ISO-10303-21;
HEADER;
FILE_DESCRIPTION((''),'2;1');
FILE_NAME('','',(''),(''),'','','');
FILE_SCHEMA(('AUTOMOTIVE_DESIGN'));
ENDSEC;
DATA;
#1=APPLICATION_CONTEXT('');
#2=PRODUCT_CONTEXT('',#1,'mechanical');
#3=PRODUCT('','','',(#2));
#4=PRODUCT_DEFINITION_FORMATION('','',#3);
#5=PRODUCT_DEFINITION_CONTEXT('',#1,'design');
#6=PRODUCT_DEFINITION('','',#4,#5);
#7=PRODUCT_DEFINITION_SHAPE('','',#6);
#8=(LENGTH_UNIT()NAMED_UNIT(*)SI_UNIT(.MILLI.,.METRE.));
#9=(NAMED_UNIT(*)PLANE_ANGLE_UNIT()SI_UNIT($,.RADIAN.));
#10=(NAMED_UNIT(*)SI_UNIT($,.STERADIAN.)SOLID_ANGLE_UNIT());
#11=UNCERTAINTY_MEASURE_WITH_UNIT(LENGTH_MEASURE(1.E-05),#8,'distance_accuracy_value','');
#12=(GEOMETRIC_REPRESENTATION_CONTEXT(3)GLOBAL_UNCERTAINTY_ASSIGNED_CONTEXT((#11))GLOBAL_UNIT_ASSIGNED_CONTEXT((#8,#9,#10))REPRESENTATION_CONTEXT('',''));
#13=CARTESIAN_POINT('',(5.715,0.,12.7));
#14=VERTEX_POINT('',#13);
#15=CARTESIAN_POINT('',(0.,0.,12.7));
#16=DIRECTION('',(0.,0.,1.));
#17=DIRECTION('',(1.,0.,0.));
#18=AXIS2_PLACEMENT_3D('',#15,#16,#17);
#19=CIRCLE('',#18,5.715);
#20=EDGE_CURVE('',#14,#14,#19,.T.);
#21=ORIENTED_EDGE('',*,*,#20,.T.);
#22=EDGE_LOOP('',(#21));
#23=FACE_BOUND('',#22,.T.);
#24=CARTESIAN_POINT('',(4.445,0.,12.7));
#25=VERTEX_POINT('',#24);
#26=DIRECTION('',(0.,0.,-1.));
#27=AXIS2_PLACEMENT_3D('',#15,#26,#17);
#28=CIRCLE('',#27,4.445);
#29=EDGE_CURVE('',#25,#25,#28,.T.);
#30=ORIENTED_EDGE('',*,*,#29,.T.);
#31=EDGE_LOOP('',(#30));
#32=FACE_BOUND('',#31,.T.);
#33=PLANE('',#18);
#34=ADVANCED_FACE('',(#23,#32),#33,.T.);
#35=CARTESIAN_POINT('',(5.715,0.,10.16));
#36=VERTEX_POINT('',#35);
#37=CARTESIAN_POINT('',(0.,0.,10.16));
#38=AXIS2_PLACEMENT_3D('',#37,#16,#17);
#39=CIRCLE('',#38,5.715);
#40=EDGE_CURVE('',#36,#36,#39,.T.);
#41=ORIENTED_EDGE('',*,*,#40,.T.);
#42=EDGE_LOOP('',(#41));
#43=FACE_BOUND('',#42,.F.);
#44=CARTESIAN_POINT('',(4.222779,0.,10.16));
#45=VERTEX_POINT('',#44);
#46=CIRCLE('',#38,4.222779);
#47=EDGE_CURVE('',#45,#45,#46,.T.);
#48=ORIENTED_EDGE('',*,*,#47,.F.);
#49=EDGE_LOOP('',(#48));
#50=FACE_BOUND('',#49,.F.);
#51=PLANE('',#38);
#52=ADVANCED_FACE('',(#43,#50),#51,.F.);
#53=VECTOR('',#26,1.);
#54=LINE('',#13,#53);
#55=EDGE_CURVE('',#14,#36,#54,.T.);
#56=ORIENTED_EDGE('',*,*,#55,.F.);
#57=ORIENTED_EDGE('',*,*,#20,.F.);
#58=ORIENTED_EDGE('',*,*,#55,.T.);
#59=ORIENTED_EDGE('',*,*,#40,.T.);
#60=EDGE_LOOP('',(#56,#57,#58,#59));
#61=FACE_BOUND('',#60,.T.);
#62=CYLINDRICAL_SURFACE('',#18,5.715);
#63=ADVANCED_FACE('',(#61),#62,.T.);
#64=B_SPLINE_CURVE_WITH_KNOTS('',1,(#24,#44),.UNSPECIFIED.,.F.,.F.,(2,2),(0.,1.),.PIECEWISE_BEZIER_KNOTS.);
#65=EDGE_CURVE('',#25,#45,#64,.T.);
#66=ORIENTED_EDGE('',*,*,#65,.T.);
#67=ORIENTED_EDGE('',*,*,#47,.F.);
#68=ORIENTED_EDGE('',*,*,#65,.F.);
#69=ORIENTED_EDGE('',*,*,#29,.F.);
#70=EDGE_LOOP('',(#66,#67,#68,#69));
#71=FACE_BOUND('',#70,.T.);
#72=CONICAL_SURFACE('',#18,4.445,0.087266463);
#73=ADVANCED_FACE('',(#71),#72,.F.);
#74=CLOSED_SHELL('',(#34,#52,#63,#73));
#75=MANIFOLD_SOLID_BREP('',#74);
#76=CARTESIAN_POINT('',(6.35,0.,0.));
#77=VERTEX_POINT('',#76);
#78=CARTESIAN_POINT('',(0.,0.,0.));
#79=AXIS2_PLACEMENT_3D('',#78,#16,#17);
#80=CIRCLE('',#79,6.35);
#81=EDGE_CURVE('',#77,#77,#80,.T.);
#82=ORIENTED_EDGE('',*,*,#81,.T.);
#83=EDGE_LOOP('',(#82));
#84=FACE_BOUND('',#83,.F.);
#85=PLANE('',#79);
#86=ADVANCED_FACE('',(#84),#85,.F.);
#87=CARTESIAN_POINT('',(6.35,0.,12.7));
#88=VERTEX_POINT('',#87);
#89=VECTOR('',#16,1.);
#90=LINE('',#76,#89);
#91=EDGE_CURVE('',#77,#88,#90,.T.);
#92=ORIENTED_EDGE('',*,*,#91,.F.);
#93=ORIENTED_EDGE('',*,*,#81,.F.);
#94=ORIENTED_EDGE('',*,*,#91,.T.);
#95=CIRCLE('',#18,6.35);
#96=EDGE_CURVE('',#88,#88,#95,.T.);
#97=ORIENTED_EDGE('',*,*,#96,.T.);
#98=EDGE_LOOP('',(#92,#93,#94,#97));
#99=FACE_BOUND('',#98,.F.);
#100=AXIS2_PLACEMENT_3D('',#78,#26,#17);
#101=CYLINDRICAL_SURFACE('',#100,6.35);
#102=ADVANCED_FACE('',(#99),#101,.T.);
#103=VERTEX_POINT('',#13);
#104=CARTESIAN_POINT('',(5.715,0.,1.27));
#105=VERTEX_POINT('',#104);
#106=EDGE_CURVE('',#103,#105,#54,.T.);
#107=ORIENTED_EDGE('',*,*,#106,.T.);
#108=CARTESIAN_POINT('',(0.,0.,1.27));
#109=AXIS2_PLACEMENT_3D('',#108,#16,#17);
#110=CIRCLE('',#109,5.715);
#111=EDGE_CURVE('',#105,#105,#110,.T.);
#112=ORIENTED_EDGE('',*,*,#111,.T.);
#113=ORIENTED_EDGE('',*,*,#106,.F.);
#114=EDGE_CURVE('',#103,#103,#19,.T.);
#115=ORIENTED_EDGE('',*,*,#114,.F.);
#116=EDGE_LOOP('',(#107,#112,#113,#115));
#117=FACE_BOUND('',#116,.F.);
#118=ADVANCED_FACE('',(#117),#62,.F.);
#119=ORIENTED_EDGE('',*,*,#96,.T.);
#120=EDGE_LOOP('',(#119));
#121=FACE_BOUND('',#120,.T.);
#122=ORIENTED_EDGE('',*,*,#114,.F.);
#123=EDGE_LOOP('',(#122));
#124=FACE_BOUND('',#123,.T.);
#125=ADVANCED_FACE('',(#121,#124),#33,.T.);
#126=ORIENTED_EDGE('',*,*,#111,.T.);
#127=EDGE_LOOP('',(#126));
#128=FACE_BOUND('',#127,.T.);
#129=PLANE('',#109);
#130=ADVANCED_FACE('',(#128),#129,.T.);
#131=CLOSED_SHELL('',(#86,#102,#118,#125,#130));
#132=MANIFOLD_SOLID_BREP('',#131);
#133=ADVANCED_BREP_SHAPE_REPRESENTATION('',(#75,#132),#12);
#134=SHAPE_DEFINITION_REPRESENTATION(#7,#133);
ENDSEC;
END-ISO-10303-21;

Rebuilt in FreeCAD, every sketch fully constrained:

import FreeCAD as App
import Part
import Sketcher
Q = App.Units.Quantity

doc = App.newDocument("Part")
params = doc.addObject("Spreadsheet::Sheet", "Params")
for row, (alias, value) in enumerate([
    ("sketch1_diameter", "0.5 in"),
    ("pad1_length", "0.5 in"),
    ("sketch2_diameter", "0.45 in"),
    ("sketch2_diameter2", "0.35 in"),
    ("pocket1_length", "0.45 in"),
    ("sketch3_diameter", "0.35 in"),
    ("pocket2_length", "0.45 in"),
    ("sketch4_diameter", "0.45 in"),
    ("sketch4_diameter2", "0.35 in"),
    ("pad2_length", "0.1 in"),
    ("sketch5_diameter", "0.35 in"),
    ("pad3_length", "0.1 in"),
    ("sketch6_diameter", "0.35 in"),
    ("pocket3_length", "0.1 in"),
    ("pocket3_taper", "-5 deg"),
], start=1):
    params.set(f"A{row}", alias)
    params.set(f"B{row}", "=" + value)
    params.setAlias(f"B{row}", alias)

body = doc.addObject("PartDesign::Body", "Body")

sketch1 = body.newObject("Sketcher::SketchObject", "Sketch")
sketch1.AttachmentSupport = (doc.getObject("XY_Plane"), [""])
sketch1.MapMode = "FlatFace"
sketch1.addGeometry(Part.Circle(App.Vector(0, 0, 0), App.Vector(0, 0, 1), 6), False)
sketch1.addConstraint(Sketcher.Constraint("Coincident", 0, 3, -1, 1))
sketch1.addConstraint(Sketcher.Constraint("Diameter", 0, Q("0.5 in")))
sketch1.setExpression("Constraints[1]", "Params.sketch1_diameter")
pad1 = body.newObject("PartDesign::Pad", "Pad")
pad1.Profile = sketch1
pad1.setExpression("Length", "Params.pad1_length")

sketch2 = body.newObject("Sketcher::SketchObject", "Sketch001")
sketch2.AttachmentSupport = (doc.getObject("XY_Plane"), [""])
sketch2.MapMode = "FlatFace"
sketch2.AttachmentOffset = App.Placement(App.Vector(0, 0, 0.5 * 25.4), App.Rotation())
sketch2.addGeometry(Part.Circle(App.Vector(0, 0, 0), App.Vector(0, 0, 1), 5.7), False)
sketch2.addGeometry(Part.Circle(App.Vector(0, 0, 0), App.Vector(0, 0, 1), 4.4), False)
sketch2.addConstraint(Sketcher.Constraint("Coincident", 0, 3, -1, 1))
sketch2.addConstraint(Sketcher.Constraint("Coincident", 1, 3, -1, 1))
sketch2.addConstraint(Sketcher.Constraint("Diameter", 0, Q("0.45 in")))
sketch2.addConstraint(Sketcher.Constraint("Diameter", 1, Q("0.35 in")))
sketch2.setExpression("Constraints[2]", "Params.sketch2_diameter")
sketch2.setExpression("Constraints[3]", "Params.sketch2_diameter2")
pocket1 = body.newObject("PartDesign::Pocket", "Pocket")
pocket1.Profile = sketch2
pocket1.setExpression("Length", "Params.pocket1_length")

sketch3 = body.newObject("Sketcher::SketchObject", "Sketch002")
sketch3.AttachmentSupport = (doc.getObject("XY_Plane"), [""])
sketch3.MapMode = "FlatFace"
sketch3.AttachmentOffset = App.Placement(App.Vector(0, 0, 0.5 * 25.4), App.Rotation())
sketch3.addGeometry(Part.Circle(App.Vector(0, 0, 0), App.Vector(0, 0, 1), 4.4), False)
sketch3.addConstraint(Sketcher.Constraint("Coincident", 0, 3, -1, 1))
sketch3.addConstraint(Sketcher.Constraint("Diameter", 0, Q("0.35 in")))
sketch3.setExpression("Constraints[1]", "Params.sketch3_diameter")
pocket2 = body.newObject("PartDesign::Pocket", "Pocket001")
pocket2.Profile = sketch3
pocket2.setExpression("Length", "Params.pocket2_length")
body2 = doc.addObject("PartDesign::Body", "Body001")

sketch4 = body2.newObject("Sketcher::SketchObject", "Sketch003")
sketch4.AttachmentSupport = (doc.getObject("XY_Plane001"), [""])
sketch4.MapMode = "FlatFace"
sketch4.AttachmentOffset = App.Placement(App.Vector(0, 0, 0.5 * 25.4), App.Rotation())
sketch4.addGeometry(Part.Circle(App.Vector(0, 0, 0), App.Vector(0, 0, 1), 5.7), False)
sketch4.addGeometry(Part.Circle(App.Vector(0, 0, 0), App.Vector(0, 0, 1), 4.4), False)
sketch4.addConstraint(Sketcher.Constraint("Coincident", 0, 3, -1, 1))
sketch4.addConstraint(Sketcher.Constraint("Coincident", 1, 3, -1, 1))
sketch4.addConstraint(Sketcher.Constraint("Diameter", 0, Q("0.45 in")))
sketch4.addConstraint(Sketcher.Constraint("Diameter", 1, Q("0.35 in")))
sketch4.setExpression("Constraints[2]", "Params.sketch4_diameter")
sketch4.setExpression("Constraints[3]", "Params.sketch4_diameter2")
pad2 = body2.newObject("PartDesign::Pad", "Pad001")
pad2.Profile = sketch4
pad2.setExpression("Length", "Params.pad2_length")
pad2.Reversed = True

sketch5 = body2.newObject("Sketcher::SketchObject", "Sketch004")
sketch5.AttachmentSupport = (doc.getObject("XY_Plane001"), [""])
sketch5.MapMode = "FlatFace"
sketch5.AttachmentOffset = App.Placement(App.Vector(0, 0, 0.5 * 25.4), App.Rotation())
sketch5.addGeometry(Part.Circle(App.Vector(0, 0, 0), App.Vector(0, 0, 1), 4.4), False)
sketch5.addConstraint(Sketcher.Constraint("Coincident", 0, 3, -1, 1))
sketch5.addConstraint(Sketcher.Constraint("Diameter", 0, Q("0.35 in")))
sketch5.setExpression("Constraints[1]", "Params.sketch5_diameter")
pad3 = body2.newObject("PartDesign::Pad", "Pad002")
pad3.Profile = sketch5
pad3.setExpression("Length", "Params.pad3_length")
pad3.Reversed = True

sketch6 = body2.newObject("Sketcher::SketchObject", "Sketch005")
sketch6.AttachmentSupport = (doc.getObject("XY_Plane001"), [""])
sketch6.MapMode = "FlatFace"
sketch6.AttachmentOffset = App.Placement(App.Vector(0, 0, 0.5 * 25.4), App.Rotation())
sketch6.addGeometry(Part.Circle(App.Vector(0, 0, 0), App.Vector(0, 0, 1), 4.4), False)
sketch6.addConstraint(Sketcher.Constraint("Coincident", 0, 3, -1, 1))
sketch6.addConstraint(Sketcher.Constraint("Diameter", 0, Q("0.35 in")))
sketch6.setExpression("Constraints[1]", "Params.sketch6_diameter")
pocket3 = body2.newObject("PartDesign::Pocket", "Pocket002")
pocket3.Profile = sketch6
pocket3.setExpression("Length", "Params.pocket3_length")
pocket3.setExpression("TaperAngle", "Params.pocket3_taper")

doc.recompute()
